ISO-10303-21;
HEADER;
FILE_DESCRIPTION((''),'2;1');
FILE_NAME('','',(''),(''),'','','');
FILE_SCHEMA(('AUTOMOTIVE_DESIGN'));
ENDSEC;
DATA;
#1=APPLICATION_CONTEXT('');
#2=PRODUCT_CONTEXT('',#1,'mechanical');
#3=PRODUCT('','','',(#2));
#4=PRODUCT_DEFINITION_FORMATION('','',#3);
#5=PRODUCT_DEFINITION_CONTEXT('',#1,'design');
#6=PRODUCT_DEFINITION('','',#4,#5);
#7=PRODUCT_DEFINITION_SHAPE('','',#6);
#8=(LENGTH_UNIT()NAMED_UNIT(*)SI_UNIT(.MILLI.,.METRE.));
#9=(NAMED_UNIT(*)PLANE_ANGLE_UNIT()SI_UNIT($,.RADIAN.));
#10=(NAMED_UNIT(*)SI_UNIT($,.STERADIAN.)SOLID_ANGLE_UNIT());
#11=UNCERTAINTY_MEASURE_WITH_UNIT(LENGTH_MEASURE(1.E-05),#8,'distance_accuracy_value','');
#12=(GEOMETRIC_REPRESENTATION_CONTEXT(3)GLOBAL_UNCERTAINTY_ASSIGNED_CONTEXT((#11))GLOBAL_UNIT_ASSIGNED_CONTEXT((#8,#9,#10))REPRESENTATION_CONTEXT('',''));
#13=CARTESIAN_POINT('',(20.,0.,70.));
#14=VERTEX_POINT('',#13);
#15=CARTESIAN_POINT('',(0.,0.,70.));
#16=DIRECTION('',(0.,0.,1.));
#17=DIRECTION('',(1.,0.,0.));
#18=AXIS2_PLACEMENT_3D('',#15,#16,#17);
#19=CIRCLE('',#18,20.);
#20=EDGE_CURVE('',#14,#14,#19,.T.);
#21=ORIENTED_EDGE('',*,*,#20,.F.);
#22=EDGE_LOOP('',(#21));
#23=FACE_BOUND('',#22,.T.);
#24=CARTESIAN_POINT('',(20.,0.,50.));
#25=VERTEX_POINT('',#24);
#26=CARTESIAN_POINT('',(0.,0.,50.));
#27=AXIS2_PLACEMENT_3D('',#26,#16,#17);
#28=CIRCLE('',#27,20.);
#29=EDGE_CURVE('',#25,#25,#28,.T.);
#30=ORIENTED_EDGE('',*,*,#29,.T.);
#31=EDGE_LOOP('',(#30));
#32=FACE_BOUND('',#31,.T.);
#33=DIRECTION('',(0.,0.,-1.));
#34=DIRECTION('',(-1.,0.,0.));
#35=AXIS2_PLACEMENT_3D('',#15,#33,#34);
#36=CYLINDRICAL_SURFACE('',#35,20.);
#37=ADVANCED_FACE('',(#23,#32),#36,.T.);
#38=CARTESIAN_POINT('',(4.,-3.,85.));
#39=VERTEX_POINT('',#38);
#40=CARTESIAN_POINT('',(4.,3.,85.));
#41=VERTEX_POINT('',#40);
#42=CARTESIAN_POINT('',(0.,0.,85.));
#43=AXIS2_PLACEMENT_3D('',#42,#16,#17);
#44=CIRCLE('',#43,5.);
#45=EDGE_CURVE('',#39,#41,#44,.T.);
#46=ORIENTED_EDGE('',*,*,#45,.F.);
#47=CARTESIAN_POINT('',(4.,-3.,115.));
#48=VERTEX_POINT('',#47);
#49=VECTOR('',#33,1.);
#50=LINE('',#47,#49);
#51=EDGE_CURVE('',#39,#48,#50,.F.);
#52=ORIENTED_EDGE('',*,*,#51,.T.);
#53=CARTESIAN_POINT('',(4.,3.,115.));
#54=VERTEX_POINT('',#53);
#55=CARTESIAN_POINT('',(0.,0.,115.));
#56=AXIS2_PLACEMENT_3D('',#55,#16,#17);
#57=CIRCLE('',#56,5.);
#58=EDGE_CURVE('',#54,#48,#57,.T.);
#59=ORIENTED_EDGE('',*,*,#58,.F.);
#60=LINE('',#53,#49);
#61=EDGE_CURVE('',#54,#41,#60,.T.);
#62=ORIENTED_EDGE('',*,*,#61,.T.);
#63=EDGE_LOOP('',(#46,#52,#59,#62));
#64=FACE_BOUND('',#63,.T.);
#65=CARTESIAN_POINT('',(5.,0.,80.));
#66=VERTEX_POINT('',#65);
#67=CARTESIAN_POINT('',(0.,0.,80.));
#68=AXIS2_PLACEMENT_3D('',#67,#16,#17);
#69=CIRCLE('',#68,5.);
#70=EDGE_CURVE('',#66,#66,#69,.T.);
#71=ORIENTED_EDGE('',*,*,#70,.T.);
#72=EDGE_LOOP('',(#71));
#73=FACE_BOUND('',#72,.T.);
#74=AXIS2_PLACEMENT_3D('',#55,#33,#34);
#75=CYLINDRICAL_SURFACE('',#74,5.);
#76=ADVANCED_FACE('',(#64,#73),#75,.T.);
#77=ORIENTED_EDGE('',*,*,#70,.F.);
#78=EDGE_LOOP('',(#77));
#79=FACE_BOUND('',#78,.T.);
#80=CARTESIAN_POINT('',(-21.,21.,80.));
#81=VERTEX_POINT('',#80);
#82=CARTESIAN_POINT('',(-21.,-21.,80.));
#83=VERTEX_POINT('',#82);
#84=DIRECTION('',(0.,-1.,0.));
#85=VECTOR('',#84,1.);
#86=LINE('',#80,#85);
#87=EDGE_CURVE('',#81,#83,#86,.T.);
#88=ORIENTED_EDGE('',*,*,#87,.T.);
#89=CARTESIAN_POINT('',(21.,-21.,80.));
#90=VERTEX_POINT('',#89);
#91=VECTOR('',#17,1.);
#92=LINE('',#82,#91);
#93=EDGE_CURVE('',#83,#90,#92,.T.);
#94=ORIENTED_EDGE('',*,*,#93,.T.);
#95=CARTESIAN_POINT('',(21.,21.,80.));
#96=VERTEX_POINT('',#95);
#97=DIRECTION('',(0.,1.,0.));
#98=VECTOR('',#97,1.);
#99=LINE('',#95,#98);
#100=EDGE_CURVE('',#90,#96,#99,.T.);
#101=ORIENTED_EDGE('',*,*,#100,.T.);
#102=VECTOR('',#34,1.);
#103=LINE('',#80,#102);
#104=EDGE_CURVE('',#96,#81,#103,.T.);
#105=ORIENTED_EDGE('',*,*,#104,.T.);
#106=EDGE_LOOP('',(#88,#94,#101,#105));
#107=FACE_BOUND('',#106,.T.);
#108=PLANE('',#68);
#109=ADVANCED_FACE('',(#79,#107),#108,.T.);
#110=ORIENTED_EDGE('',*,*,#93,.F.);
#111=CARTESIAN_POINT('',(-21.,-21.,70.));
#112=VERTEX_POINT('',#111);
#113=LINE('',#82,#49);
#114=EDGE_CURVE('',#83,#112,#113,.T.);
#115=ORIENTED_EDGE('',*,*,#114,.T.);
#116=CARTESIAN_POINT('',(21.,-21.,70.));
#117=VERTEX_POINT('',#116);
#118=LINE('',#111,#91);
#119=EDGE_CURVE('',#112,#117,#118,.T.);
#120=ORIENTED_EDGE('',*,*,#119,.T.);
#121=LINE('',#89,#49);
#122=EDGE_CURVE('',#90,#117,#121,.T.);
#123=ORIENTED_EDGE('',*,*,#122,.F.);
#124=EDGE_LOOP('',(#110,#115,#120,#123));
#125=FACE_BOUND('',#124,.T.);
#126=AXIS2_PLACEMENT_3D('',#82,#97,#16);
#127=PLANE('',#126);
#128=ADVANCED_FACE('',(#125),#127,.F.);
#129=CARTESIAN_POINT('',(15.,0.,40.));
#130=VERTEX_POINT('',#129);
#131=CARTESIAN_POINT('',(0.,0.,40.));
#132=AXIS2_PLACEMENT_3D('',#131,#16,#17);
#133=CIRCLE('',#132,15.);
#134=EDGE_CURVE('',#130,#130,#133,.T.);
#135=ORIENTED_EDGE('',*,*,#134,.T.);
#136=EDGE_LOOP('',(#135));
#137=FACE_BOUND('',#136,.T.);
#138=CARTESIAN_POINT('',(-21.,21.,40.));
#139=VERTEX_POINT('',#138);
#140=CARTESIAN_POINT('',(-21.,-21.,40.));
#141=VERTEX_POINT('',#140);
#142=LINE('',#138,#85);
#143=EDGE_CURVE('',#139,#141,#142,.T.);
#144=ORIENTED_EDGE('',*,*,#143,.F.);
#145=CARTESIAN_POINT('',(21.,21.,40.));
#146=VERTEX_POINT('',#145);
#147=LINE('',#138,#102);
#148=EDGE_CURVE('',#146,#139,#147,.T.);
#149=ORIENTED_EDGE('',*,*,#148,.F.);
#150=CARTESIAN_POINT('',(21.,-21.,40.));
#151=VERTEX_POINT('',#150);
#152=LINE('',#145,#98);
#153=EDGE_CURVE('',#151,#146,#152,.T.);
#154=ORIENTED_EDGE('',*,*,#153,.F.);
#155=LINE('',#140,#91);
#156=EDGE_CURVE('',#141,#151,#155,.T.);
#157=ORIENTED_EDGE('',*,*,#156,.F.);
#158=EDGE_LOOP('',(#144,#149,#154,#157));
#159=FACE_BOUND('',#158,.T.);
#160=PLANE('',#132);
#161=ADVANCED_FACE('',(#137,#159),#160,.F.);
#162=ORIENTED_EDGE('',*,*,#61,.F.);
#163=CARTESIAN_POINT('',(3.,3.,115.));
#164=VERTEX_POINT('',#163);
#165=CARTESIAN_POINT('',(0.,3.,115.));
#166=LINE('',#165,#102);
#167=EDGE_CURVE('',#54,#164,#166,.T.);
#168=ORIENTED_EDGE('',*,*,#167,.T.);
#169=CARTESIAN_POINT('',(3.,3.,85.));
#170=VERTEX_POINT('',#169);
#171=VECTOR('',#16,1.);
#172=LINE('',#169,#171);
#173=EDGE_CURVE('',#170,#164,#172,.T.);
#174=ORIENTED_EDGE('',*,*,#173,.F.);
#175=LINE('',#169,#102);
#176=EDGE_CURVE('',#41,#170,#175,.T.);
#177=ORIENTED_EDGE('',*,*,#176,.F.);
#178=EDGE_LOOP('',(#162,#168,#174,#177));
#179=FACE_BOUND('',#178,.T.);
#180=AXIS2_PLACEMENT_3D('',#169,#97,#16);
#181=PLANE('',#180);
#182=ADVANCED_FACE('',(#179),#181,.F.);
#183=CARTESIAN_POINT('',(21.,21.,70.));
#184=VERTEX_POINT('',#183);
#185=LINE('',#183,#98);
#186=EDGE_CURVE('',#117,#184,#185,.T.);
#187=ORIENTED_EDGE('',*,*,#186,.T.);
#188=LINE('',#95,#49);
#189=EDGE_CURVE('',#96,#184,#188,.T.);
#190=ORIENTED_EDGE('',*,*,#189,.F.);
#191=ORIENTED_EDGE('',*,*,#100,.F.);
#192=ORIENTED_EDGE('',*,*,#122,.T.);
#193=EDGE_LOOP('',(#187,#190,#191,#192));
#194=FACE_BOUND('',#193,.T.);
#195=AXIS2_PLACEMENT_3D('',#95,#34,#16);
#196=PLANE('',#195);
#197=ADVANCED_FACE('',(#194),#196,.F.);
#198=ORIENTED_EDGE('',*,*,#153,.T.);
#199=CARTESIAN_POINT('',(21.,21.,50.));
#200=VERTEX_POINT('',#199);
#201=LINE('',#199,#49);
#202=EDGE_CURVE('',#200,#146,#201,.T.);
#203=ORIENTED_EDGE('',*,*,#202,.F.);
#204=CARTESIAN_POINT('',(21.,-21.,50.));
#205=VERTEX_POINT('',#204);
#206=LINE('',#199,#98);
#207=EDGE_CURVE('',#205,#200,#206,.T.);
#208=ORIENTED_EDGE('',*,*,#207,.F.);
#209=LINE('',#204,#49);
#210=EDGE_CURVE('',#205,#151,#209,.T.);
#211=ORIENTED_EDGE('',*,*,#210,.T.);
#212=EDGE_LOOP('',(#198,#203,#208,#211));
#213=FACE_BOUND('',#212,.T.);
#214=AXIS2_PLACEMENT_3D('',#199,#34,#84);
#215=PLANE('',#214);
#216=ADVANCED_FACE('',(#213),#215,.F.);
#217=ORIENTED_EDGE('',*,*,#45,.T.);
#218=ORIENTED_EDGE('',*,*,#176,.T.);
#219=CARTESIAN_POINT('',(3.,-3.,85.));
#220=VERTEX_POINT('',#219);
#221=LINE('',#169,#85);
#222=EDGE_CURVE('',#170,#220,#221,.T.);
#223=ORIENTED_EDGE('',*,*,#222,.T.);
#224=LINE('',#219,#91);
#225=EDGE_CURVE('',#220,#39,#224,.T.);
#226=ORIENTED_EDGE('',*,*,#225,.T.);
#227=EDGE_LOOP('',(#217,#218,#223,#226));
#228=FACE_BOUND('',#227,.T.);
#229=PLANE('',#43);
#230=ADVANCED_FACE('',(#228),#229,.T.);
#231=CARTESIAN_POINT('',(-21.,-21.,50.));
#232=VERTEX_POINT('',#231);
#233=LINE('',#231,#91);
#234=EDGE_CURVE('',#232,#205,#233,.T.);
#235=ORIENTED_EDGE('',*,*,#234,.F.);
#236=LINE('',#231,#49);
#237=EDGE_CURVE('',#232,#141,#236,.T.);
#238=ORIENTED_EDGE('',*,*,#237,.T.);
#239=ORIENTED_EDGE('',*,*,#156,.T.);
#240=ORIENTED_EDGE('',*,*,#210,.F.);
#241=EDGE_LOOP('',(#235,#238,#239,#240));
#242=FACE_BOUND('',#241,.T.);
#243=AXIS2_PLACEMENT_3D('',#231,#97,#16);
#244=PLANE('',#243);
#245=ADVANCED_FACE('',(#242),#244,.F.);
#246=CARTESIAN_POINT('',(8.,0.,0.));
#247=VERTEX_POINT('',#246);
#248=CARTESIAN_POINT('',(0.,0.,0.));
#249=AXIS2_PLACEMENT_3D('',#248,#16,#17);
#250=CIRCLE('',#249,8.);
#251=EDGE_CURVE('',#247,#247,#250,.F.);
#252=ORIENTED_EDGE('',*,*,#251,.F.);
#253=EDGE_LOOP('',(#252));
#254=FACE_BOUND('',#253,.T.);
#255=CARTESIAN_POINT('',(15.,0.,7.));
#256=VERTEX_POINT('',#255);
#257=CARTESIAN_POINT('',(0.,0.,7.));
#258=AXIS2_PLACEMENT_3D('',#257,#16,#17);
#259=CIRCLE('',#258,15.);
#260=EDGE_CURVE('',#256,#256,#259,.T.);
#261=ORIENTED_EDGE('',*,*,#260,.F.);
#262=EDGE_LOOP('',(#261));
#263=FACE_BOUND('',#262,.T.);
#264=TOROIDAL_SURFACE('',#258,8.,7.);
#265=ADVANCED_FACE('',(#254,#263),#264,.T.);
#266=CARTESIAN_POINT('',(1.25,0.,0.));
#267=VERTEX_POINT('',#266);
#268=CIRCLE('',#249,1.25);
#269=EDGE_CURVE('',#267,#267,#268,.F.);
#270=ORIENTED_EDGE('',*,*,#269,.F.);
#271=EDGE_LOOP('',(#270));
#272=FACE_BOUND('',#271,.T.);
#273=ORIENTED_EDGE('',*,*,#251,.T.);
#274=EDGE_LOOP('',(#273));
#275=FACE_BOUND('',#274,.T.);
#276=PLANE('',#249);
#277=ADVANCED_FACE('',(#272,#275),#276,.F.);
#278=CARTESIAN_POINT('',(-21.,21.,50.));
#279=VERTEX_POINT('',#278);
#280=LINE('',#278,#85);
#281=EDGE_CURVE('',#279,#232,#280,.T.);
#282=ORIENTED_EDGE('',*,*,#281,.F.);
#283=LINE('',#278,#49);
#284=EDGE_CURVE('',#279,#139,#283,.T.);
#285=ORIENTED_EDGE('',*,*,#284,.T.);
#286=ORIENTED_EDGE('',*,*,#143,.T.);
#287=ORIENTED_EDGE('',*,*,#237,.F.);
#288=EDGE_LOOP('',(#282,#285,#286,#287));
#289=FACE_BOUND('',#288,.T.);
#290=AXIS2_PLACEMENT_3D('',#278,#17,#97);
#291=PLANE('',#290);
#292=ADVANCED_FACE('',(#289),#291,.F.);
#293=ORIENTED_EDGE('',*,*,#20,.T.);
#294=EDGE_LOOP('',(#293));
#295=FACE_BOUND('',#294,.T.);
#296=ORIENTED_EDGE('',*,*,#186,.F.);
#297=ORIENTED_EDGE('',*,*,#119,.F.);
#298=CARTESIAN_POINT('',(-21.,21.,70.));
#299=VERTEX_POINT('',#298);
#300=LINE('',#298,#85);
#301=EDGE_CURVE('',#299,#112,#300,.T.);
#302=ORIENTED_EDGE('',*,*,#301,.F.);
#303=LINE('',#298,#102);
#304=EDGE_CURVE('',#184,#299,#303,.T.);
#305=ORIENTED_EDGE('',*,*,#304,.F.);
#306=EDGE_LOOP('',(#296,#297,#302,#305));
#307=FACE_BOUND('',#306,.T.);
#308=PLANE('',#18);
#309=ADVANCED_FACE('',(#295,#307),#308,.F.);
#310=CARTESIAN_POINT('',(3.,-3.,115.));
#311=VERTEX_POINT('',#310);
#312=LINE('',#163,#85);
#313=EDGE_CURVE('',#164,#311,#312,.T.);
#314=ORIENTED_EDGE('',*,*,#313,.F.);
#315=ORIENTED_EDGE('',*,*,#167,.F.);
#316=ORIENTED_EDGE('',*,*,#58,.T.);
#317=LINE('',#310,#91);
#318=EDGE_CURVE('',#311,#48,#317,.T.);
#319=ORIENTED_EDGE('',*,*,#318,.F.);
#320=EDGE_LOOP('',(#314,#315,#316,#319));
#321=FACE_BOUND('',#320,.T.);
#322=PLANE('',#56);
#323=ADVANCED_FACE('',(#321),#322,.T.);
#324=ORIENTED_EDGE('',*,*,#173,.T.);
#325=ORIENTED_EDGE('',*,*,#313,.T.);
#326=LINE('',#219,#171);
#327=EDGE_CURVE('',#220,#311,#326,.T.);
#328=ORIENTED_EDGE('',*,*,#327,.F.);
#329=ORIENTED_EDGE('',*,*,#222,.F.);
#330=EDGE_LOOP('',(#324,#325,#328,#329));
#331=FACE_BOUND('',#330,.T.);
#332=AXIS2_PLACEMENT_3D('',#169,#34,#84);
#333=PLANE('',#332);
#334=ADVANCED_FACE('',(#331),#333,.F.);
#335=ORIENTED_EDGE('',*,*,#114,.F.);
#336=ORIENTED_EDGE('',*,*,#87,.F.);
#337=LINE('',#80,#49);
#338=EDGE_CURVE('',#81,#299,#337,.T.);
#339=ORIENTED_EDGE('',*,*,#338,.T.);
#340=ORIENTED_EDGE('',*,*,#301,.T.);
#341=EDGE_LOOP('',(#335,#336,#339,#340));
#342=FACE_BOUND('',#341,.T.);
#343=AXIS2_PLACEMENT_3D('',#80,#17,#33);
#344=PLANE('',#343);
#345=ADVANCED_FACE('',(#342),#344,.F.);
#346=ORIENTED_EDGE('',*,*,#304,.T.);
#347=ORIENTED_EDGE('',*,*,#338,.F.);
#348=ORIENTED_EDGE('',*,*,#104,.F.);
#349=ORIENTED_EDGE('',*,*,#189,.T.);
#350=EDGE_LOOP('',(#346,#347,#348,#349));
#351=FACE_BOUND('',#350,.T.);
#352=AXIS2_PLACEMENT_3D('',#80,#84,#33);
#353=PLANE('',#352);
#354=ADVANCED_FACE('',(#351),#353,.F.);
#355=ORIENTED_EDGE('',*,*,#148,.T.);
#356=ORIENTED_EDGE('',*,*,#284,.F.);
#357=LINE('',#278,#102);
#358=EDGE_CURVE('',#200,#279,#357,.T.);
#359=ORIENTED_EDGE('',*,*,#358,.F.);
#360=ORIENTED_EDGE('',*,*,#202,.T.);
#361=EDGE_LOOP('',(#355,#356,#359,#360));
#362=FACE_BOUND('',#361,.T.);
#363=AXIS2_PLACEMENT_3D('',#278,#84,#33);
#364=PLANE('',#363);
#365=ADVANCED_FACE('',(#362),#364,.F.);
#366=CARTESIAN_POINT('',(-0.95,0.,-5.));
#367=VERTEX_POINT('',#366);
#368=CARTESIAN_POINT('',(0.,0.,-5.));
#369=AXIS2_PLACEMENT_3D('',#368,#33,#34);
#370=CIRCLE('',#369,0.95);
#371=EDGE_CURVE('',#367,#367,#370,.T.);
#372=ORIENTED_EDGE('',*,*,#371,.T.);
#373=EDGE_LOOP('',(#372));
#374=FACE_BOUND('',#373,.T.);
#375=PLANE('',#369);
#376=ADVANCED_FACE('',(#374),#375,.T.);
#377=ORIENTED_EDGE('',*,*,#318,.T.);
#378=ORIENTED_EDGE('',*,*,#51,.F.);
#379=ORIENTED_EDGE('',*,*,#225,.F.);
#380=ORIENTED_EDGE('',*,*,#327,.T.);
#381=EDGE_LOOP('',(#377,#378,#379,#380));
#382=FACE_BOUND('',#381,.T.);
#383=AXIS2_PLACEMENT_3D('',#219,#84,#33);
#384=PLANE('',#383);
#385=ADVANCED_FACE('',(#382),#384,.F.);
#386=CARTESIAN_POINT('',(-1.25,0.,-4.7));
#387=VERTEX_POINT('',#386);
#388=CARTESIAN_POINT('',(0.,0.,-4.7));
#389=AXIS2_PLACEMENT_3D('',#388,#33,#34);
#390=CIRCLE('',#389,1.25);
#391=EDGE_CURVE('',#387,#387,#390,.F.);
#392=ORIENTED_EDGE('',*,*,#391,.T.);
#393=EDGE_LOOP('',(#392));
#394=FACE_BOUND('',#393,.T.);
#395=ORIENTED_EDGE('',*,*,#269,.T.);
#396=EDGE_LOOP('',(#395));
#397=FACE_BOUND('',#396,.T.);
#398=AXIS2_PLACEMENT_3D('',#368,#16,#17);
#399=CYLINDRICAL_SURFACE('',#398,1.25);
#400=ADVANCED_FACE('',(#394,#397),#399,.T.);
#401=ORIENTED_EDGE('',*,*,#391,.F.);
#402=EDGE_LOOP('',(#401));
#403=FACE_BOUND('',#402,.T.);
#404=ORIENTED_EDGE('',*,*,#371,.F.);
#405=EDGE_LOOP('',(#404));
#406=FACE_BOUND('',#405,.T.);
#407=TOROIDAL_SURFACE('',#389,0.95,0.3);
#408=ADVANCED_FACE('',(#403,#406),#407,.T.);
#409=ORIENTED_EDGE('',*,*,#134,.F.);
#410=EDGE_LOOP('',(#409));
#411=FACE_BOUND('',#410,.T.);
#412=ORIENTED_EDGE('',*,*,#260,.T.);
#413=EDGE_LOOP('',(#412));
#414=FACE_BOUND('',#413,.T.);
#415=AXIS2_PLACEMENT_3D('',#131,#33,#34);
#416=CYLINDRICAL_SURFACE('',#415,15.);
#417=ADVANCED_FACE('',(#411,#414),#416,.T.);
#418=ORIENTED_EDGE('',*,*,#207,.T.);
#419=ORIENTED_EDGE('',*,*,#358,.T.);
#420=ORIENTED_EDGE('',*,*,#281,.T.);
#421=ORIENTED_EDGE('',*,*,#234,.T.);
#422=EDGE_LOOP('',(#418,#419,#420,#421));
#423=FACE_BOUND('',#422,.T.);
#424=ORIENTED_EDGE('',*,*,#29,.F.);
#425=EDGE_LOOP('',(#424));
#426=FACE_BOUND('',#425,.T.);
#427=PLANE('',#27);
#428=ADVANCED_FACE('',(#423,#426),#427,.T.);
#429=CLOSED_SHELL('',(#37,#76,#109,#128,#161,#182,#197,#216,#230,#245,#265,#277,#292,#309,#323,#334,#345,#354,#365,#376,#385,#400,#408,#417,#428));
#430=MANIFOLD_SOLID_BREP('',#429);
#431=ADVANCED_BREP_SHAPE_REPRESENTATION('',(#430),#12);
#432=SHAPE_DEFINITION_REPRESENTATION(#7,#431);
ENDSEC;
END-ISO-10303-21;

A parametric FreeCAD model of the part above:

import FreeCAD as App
import Part
import Sketcher
from FreeCAD import Vector
Q = App.Units.Quantity


def edges_at(feature, points):
    """Names of the edges that pass closest to the given points."""
    edges = feature.Shape.Edges
    near = lambda p: min(range(len(edges)), key=lambda i: edges[i].distToShape(Part.Vertex(*p))[0])
    return sorted({f"Edge{near(p) + 1}" for p in points})


def add_polygon(sketch, points):
    """Adds a closed chain of lines whose ends are joined by coincident constraints."""
    first, n = sketch.GeometryCount, len(points)
    for a, b in zip(points, points[1:] + points[:1]):
        sketch.addGeometry(Part.LineSegment(App.Vector(*a, 0), App.Vector(*b, 0)), False)
    for i in range(n):
        sketch.addConstraint(Sketcher.Constraint("Coincident", first + i, 2, first + (i + 1) % n, 1))

doc = App.newDocument("Part")
body = doc.addObject("PartDesign::Body", "Body")

sketch1 = body.newObject("Sketcher::SketchObject", "Sketch")
sketch1.AttachmentSupport = (doc.getObject("XY_Plane"), [""])
sketch1.MapMode = "FlatFace"
sketch1.addGeometry(Part.Circle(Vector(0, 0, 0), Vector(0, 0, 1), 15), False)
sketch1.addConstraint([
    Sketcher.Constraint("Coincident", 0, 3, -1, 1),
    Sketcher.Constraint("Diameter", 0, Q("30 mm")),
])
pad1 = body.newObject("PartDesign::Pad", "Pad")
pad1.Profile = sketch1
pad1.Length = 40

sketch2 = body.newObject("Sketcher::SketchObject", "Sketch001")
sketch2.AttachmentSupport = (doc.getObject("XY_Plane"), [""])
sketch2.MapMode = "FlatFace"
sketch2.AttachmentOffset = App.Placement(Vector(0, 0, 40), App.Rotation())
add_polygon(sketch2, [(-21, 21), (-21, -21), (21, -21), (21, 21)])
sketch2.addConstraint([
    Sketcher.Constraint("Vertical", 0),
    Sketcher.Constraint("Horizontal", 1),
    Sketcher.Constraint("Vertical", 2),
    Sketcher.Constraint("Horizontal", 3),
    Sketcher.Constraint("Symmetric", 0, 2, 2, 2, -1, 1),
    Sketcher.Constraint("Equal", 3, 0),
    Sketcher.Constraint("DistanceX", 1, 1, 1, 2, Q("42 mm")),
])
pad2 = body.newObject("PartDesign::Pad", "Pad001")
pad2.Profile = sketch2
pad2.Length = 10

sketch3 = body.newObject("Sketcher::SketchObject", "Sketch002")
sketch3.AttachmentSupport = (doc.getObject("XY_Plane"), [""])
sketch3.MapMode = "FlatFace"
sketch3.AttachmentOffset = App.Placement(Vector(0, 0, 50), App.Rotation())
sketch3.addGeometry(Part.Circle(Vector(0, 0, 0), Vector(0, 0, 1), 20), False)
sketch3.addConstraint([
    Sketcher.Constraint("Coincident", 0, 3, -1, 1),
    Sketcher.Constraint("Diameter", 0, Q("40 mm")),
])
pad3 = body.newObject("PartDesign::Pad", "Pad002")
pad3.Profile = sketch3
pad3.Length = 20

sketch4 = body.newObject("Sketcher::SketchObject", "Sketch003")
sketch4.AttachmentSupport = (doc.getObject("XY_Plane"), [""])
sketch4.MapMode = "FlatFace"
sketch4.AttachmentOffset = App.Placement(Vector(0, 0, 70), App.Rotation())
add_polygon(sketch4, [(-21, 21), (-21, -21), (21, -21), (21, 21)])
sketch4.addConstraint([
    Sketcher.Constraint("Vertical", 0),
    Sketcher.Constraint("Horizontal", 1),
    Sketcher.Constraint("Vertical", 2),
    Sketcher.Constraint("Horizontal", 3),
    Sketcher.Constraint("Symmetric", 0, 2, 2, 2, -1, 1),
    Sketcher.Constraint("Equal", 3, 0),
    Sketcher.Constraint("DistanceX", 1, 1, 1, 2, Q("42 mm")),
])
pad4 = body.newObject("PartDesign::Pad", "Pad003")
pad4.Profile = sketch4
pad4.Length = 10

sketch5 = body.newObject("Sketcher::SketchObject", "Sketch004")
sketch5.AttachmentSupport = (doc.getObject("XY_Plane"), [""])
sketch5.MapMode = "FlatFace"
sketch5.AttachmentOffset = App.Placement(Vector(0, 0, 80), App.Rotation())
sketch5.addGeometry(Part.Circle(Vector(0, 0, 0), Vector(0, 0, 1), 5), False)
sketch5.addConstraint([
    Sketcher.Constraint("Coincident", 0, 3, -1, 1),
    Sketcher.Constraint("Diameter", 0, Q("10 mm")),
])
pad5 = body.newObject("PartDesign::Pad", "Pad004")
pad5.Profile = sketch5
pad5.Length = 35
doc.recompute()

fillet = body.newObject("PartDesign::Fillet", "Fillet")
fillet.Base = (pad5, edges_at(pad5, [(-15, 0, 0)]))
fillet.Radius = 7

sketch6 = body.newObject("Sketcher::SketchObject", "Sketch005")
sketch6.AttachmentSupport = (doc.getObject("XY_Plane"), [""])
sketch6.MapMode = "FlatFace"
sketch6.addGeometry(Part.Circle(Vector(0, 0, 0), Vector(0, 0, 1), 1.2), False)
sketch6.addConstraint([
    Sketcher.Constraint("Coincident", 0, 3, -1, 1),
    Sketcher.Constraint("Diameter", 0, Q("2.5 mm")),
])
pad6 = body.newObject("PartDesign::Pad", "Pad005")
pad6.Profile = sketch6
pad6.Length = 5
pad6.Reversed = True
doc.recompute()

fillet2 = body.newObject("PartDesign::Fillet", "Fillet001")
fillet2.Base = (pad6, edges_at(pad6, [(-1.25, 0, -5)]))
fillet2.Radius = 0.3

sketch7 = body.newObject("Sketcher::SketchObject", "Sketch006")
sketch7.AttachmentSupport = (doc.getObject("XY_Plane"), [""])
sketch7.MapMode = "FlatFace"
sketch7.AttachmentOffset = App.Placement(Vector(0, 0, 115), App.Rotation())
add_polygon(sketch7, [(3, 3), (3, -3), (7, -3), (7, 3)])
sketch7.addConstraint([
    Sketcher.Constraint("Vertical", 0),
    Sketcher.Constraint("Horizontal", 1),
    Sketcher.Constraint("Vertical", 2),
    Sketcher.Constraint("Horizontal", 3),
    Sketcher.Constraint("DistanceX", 1, 1, 1, 2, Q("4 mm")),
    Sketcher.Constraint("DistanceY", 0, 2, 0, 1, Q("6 mm")),
    Sketcher.Constraint("DistanceX", -1, 1, 0, 2, Q("3 mm")),
    Sketcher.Constraint("DistanceY", 0, 2, -1, 1, Q("3 mm")),
])
pocket1 = body.newObject("PartDesign::Pocket", "Pocket")
pocket1.Profile = sketch7
pocket1.Length = 30

doc.recompute()
